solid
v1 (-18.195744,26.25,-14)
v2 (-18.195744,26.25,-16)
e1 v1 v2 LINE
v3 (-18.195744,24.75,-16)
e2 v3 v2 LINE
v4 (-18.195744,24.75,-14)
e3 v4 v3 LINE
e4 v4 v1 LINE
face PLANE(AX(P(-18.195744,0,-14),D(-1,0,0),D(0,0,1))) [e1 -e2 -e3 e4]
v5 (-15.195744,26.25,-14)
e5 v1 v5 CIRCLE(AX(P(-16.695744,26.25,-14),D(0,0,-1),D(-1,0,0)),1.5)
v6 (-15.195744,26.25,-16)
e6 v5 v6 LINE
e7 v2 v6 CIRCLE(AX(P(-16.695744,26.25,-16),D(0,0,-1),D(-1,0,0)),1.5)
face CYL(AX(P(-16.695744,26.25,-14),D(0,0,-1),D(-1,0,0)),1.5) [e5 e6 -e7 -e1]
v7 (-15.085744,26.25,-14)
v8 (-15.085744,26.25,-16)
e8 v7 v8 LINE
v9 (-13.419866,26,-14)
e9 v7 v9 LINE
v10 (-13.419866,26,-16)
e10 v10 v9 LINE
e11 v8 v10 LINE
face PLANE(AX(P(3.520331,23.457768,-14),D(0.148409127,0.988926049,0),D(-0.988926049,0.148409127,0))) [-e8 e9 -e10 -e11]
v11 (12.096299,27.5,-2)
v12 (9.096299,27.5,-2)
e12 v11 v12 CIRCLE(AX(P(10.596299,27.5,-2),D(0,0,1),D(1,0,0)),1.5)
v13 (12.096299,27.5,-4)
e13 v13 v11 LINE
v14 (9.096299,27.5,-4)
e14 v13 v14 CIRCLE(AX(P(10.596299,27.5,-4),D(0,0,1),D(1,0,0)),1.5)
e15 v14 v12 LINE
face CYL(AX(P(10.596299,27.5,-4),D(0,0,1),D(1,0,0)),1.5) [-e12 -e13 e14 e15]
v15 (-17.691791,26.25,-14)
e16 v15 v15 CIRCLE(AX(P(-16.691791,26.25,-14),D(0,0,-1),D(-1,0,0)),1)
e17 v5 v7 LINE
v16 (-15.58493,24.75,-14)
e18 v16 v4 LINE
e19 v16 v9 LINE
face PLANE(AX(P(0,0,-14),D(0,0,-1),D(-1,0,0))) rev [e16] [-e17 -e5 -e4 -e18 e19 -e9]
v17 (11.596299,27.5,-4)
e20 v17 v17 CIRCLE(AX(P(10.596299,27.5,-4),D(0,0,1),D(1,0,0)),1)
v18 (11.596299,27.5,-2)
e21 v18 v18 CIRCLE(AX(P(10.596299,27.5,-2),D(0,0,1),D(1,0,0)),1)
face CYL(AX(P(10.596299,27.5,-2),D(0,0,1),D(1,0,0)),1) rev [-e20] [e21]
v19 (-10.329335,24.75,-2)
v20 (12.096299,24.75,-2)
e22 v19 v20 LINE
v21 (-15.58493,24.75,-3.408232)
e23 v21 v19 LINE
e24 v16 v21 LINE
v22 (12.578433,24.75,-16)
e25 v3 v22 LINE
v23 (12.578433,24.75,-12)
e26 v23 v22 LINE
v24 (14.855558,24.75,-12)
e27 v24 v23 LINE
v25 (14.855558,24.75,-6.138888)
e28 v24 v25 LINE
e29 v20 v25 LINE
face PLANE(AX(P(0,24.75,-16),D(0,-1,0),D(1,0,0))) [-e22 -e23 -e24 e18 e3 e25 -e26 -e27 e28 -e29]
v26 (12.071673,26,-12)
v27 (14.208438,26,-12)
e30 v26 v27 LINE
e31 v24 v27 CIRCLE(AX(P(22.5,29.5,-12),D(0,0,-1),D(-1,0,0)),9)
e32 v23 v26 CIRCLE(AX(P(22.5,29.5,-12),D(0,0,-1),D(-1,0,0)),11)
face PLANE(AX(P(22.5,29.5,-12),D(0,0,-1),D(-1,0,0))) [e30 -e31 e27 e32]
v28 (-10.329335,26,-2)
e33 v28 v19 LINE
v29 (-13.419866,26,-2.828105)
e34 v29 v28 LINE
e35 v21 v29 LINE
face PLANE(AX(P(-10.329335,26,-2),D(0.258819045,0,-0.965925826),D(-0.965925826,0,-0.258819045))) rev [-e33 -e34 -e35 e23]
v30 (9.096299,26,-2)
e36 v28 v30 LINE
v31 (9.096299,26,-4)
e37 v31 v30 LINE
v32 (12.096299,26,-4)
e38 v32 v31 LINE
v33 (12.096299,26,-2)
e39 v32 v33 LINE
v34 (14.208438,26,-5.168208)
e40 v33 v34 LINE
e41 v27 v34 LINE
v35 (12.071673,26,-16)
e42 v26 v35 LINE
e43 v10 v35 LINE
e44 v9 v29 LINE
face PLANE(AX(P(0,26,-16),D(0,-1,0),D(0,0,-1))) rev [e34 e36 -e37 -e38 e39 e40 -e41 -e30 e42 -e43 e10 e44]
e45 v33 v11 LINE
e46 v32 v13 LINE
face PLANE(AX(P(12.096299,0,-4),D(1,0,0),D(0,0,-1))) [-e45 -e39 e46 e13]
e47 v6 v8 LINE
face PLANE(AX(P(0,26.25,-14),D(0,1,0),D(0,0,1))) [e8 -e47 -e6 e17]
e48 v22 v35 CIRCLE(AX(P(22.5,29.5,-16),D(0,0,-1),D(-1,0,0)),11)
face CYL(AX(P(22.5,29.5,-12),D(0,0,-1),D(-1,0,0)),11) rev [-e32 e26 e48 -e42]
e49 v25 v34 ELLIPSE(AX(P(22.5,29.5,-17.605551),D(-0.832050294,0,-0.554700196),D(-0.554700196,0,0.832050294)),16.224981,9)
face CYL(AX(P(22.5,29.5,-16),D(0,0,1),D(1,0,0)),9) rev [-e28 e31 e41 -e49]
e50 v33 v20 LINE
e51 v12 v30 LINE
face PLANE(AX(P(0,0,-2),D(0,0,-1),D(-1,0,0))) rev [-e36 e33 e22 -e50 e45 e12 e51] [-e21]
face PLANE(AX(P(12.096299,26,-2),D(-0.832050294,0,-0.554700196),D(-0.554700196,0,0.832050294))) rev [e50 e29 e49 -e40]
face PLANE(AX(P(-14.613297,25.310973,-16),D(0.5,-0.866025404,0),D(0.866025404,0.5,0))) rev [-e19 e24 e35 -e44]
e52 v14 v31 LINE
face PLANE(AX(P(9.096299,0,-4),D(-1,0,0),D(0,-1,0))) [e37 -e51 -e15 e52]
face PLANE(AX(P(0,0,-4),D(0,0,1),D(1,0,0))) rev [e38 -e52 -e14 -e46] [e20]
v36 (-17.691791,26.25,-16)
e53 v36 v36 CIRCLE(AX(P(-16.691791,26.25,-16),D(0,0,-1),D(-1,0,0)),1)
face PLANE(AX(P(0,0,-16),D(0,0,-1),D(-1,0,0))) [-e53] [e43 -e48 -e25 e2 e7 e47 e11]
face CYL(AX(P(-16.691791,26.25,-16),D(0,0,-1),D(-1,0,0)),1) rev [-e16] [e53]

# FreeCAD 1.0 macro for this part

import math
import FreeCAD as App
import Part
import Sketcher
Q = App.Units.Quantity


def add_polygon(sketch, points):
    """Adds a closed chain of lines whose ends are joined by coincident constraints."""
    first, n = sketch.GeometryCount, len(points)
    for a, b in zip(points, points[1:] + points[:1]):
        sketch.addGeometry(Part.LineSegment(App.Vector(*a, 0), App.Vector(*b, 0)), False)
    for i in range(n):
        sketch.addConstraint(Sketcher.Constraint("Coincident", first + i, 2, first + (i + 1) % n, 1))

doc = App.newDocument("Part")
body = doc.addObject("PartDesign::Body", "Body")

# Sketch on XY plane
sketch1 = body.newObject("Sketcher::SketchObject", "Sketch")
sketch1.AttachmentSupport = (doc.getObject("XY_Plane"), [""])
sketch1.MapMode = "FlatFace"
sketch1.AttachmentOffset = App.Placement(App.Vector(0, 0, -2), App.Rotation())
sketch1.addGeometry(Part.LineSegment(App.Vector(14.9, 24.8, 0), App.Vector(-15.6, 24.8, 0)), False)
sketch1.addGeometry(Part.LineSegment(App.Vector(-15.6, 24.8, 0), App.Vector(-13.4, 26, 0)), False)
sketch1.addGeometry(Part.LineSegment(App.Vector(-13.4, 26, 0), App.Vector(14.2, 26, 0)), False)
sketch1.addGeometry(Part.ArcOfCircle(Part.Circle(App.Vector(22.5, 29.5, 0), App.Vector(0, 0, 1), 9), math.radians(-157.11), math.radians(-148.14)), False)
sketch1.addConstraint(Sketcher.Constraint("Coincident", 0, 2, 1, 1))
sketch1.addConstraint(Sketcher.Constraint("Coincident", 1, 2, 2, 1))
sketch1.addConstraint(Sketcher.Constraint("Coincident", 2, 2, 3, 1))
sketch1.addConstraint(Sketcher.Constraint("Coincident", 3, 2, 0, 1))
sketch1.addConstraint(Sketcher.Constraint("Horizontal", 0))
sketch1.addConstraint(Sketcher.Constraint("Horizontal", 2))
sketch1.addConstraint(Sketcher.Constraint("Radius", 3, Q("9 mm")))
sketch1.addConstraint(Sketcher.Constraint("Angle", 1, Q("30 deg")))
sketch1.addConstraint(Sketcher.Constraint("DistanceY", -1, 1, 1, 2, Q("26 mm")))
sketch1.addConstraint(Sketcher.Constraint("Distance", 1, Q("2.5 mm")))
sketch1.addConstraint(Sketcher.Constraint("DistanceX", -1, 1, 3, 3, Q("22.5 mm")))
sketch1.addConstraint(Sketcher.Constraint("DistanceY", -1, 1, 3, 3, Q("29.5 mm")))
sketch1.addConstraint(Sketcher.Constraint("DistanceX", 0, 2, 0, 1, Q("30.440487 mm")))
pad1 = body.newObject("PartDesign::Pad", "Pad")
pad1.Profile = sketch1
pad1.Length = 14
pad1.Reversed = True

# Sketch on XY plane
sketch2 = body.newObject("Sketcher::SketchObject", "Sketch001")
sketch2.AttachmentSupport = (doc.getObject("XY_Plane"), [""])
sketch2.MapMode = "FlatFace"
sketch2.AttachmentOffset = App.Placement(App.Vector(0, 0, -16), App.Rotation())
sketch2.addGeometry(Part.LineSegment(App.Vector(17.4, 24.8, 0), App.Vector(12.6, 24.8, 0)), False)
sketch2.addGeometry(Part.ArcOfCircle(Part.Circle(App.Vector(22.5, 29.5, 0), App.Vector(0, 0, 1), 11), math.radians(166), math.radians(206)), False)
sketch2.addGeometry(Part.LineSegment(App.Vector(11.8, 32.2, 0), App.Vector(16.1, 32.2, 0)), False)
sketch2.addGeometry(Part.LineSegment(App.Vector(16.1, 32.2, 0), App.Vector(17.4, 24.8, 0)), False)
sketch2.addConstraint(Sketcher.Constraint("Coincident", 0, 2, 1, 2))
sketch2.addConstraint(Sketcher.Constraint("Coincident", 1, 1, 2, 1))
sketch2.addConstraint(Sketcher.Constraint("Coincident", 2, 2, 3, 1))
sketch2.addConstraint(Sketcher.Constraint("Coincident", 3, 2, 0, 1))
sketch2.addConstraint(Sketcher.Constraint("Horizontal", 0))
sketch2.addConstraint(Sketcher.Constraint("Horizontal", 2))
sketch2.addConstraint(Sketcher.Constraint("Radius", 1, Q("11 mm")))
sketch2.addConstraint(Sketcher.Constraint("DistanceX", -1, 1, 1, 3, Q("22.5 mm")))
sketch2.addConstraint(Sketcher.Constraint("DistanceY", -1, 1, 1, 3, Q("29.5 mm")))
sketch2.addConstraint(Sketcher.Constraint("DistanceY", 0, 2, 1, 1, Q("7.5 mm")))
sketch2.addConstraint(Sketcher.Constraint("DistanceY", -1, 1, 0, 2, Q("24.75 mm")))
sketch2.addConstraint(Sketcher.Constraint("Distance", 3, Q("7.611058 mm")))
sketch2.addConstraint(Sketcher.Constraint("DistanceX", 0, 2, 0, 1, Q("4.779826 mm")))
pocket1 = body.newObject("PartDesign::Pocket", "Pocket")
pocket1.Profile = sketch2
pocket1.Length = 4
pocket1.Reversed = True

# Sketch on XZ plane
sketch3 = body.newObject("Sketcher::SketchObject", "Sketch002")
sketch3.AttachmentSupport = (doc.getObject("XZ_Plane"), [""])
sketch3.MapMode = "FlatFace"
sketch3.AttachmentOffset = App.Placement(App.Vector(0, 0, -24.75), App.Rotation())
add_polygon(sketch3, [(12.1, -2), (15.4, -7), (15.4, -2)])  # lines 0-2
add_polygon(sketch3, [(-15.6, -3.4), (-10.3, -2), (-15.6, -2)])  # lines 3-5
sketch3.addConstraint(Sketcher.Constraint("Vertical", 1))
sketch3.addConstraint(Sketcher.Constraint("Horizontal", 2))
sketch3.addConstraint(Sketcher.Constraint("Horizontal", 4))
sketch3.addConstraint(Sketcher.Constraint("Vertical", 5))
sketch3.addConstraint(Sketcher.Constraint("Horizontal", 2, 2, 3, 2))
sketch3.addConstraint(Sketcher.Constraint("DistanceY", 1, 1, 1, 2, Q("5 mm")))
sketch3.addConstraint(Sketcher.Constraint("Angle", 3, Q("15 deg")))
sketch3.addConstraint(Sketcher.Constraint("DistanceY", 0, 2, -1, 1, Q("7 mm")))
sketch3.addConstraint(Sketcher.Constraint("DistanceX", -1, 1, 2, 2, Q("12.096299 mm")))
sketch3.addConstraint(Sketcher.Constraint("DistanceX", 2, 2, 2, 1, Q("3.333333 mm")))
sketch3.addConstraint(Sketcher.Constraint("DistanceX", 4, 2, 4, 1, Q("5.255595 mm")))
sketch3.addConstraint(Sketcher.Constraint("DistanceX", 4, 2, -1, 1, Q("15.58493 mm")))
pocket2 = body.newObject("PartDesign::Pocket", "Pocket001")
pocket2.Profile = sketch3
pocket2.Type = "ThroughAll"

# Sketch on XY plane
sketch4 = body.newObject("Sketcher::SketchObject", "Sketch003")
sketch4.AttachmentSupport = (doc.getObject("XY_Plane"), [""])
sketch4.MapMode = "FlatFace"
sketch4.AttachmentOffset = App.Placement(App.Vector(0, 0, -16), App.Rotation())
sketch4.addGeometry(Part.LineSegment(App.Vector(-15.2, 26.25, 0), App.Vector(-15.09, 26.25, 0)), False)
sketch4.addGeometry(Part.LineSegment(App.Vector(-15.09, 26.25, 0), App.Vector(-13.42, 26, 0)), False)
sketch4.addGeometry(Part.LineSegment(App.Vector(-13.42, 26, 0), App.Vector(-15.58, 24.75, 0)), False)
sketch4.addGeometry(Part.LineSegment(App.Vector(-15.58, 24.75, 0), App.Vector(-18.2, 24.75, 0)), False)
sketch4.addGeometry(Part.LineSegment(App.Vector(-18.2, 24.75, 0), App.Vector(-18.2, 26.25, 0)), False)
sketch4.addGeometry(Part.ArcOfCircle(Part.Circle(App.Vector(-16.7, 26.25, 0), App.Vector(0, 0, 1), 1.5), math.radians(0), math.radians(180)), False)
sketch4.addConstraint(Sketcher.Constraint("Coincident", 0, 2, 1, 1))
sketch4.addConstraint(Sketcher.Constraint("Coincident", 1, 2, 2, 1))
sketch4.addConstraint(Sketcher.Constraint("Coincident", 2, 2, 3, 1))
sketch4.addConstraint(Sketcher.Constraint("Coincident", 3, 2, 4, 1))
sketch4.addConstraint(Sketcher.Constraint("Tangent", 4, 2, 5, 2))
sketch4.addConstraint(Sketcher.Constraint("Coincident", 5, 1, 0, 1))
sketch4.addConstraint(Sketcher.Constraint("Horizontal", 0))
sketch4.addConstraint(Sketcher.Constraint("Horizontal", 3))
sketch4.addConstraint(Sketcher.Constraint("Vertical", 4))
sketch4.addConstraint(Sketcher.Constraint("Horizontal", 5, 3, 0, 2))
sketch4.addConstraint(Sketcher.Constraint("Radius", 5, Q("1.5 mm")))
sketch4.addConstraint(Sketcher.Constraint("Angle", 2, Q("-150 deg")))
sketch4.addConstraint(Sketcher.Constraint("DistanceY", 4, 1, 4, 2, Q("1.5 mm")))
sketch4.addConstraint(Sketcher.Constraint("DistanceY", -1, 1, 1, 2, Q("26 mm")))
sketch4.addConstraint(Sketcher.Constraint("Distance", 2, Q("2.5 mm")))
sketch4.addConstraint(Sketcher.Constraint("DistanceX", 0, 1, 0, 2, Q("0.11 mm")))
sketch4.addConstraint(Sketcher.Constraint("DistanceX", 3, 2, 3, 1, Q("2.610815 mm")))
sketch4.addConstraint(Sketcher.Constraint("DistanceX", 2, 2, -1, 1, Q("15.58493 mm")))
pad2 = body.newObject("PartDesign::Pad", "Pad001")
pad2.Profile = sketch4
pad2.Length = 2

# Sketch on XY plane
sketch5 = body.newObject("Sketcher::SketchObject", "Sketch004")
sketch5.AttachmentSupport = (doc.getObject("XY_Plane"), [""])
sketch5.MapMode = "FlatFace"
sketch5.AttachmentOffset = App.Placement(App.Vector(0, 0, -2), App.Rotation())
sketch5.addGeometry(Part.LineSegment(App.Vector(9.1, 26, 0), App.Vector(12.1, 26, 0)), False)
sketch5.addGeometry(Part.LineSegment(App.Vector(12.1, 26, 0), App.Vector(12.1, 27.5, 0)), False)
sketch5.addGeometry(Part.ArcOfCircle(Part.Circle(App.Vector(10.6, 27.5, 0), App.Vector(0, 0, 1), 1.5), math.radians(0), math.radians(180)), False)
sketch5.addGeometry(Part.LineSegment(App.Vector(9.1, 27.5, 0), App.Vector(9.1, 26, 0)), False)
sketch5.addConstraint(Sketcher.Constraint("Coincident", 0, 2, 1, 1))
sketch5.addConstraint(Sketcher.Constraint("Tangent", 1, 2, 2, 1))
sketch5.addConstraint(Sketcher.Constraint("Tangent", 2, 2, 3, 1))
sketch5.addConstraint(Sketcher.Constraint("Coincident", 3, 2, 0, 1))
sketch5.addConstraint(Sketcher.Constraint("Horizontal", 0))
sketch5.addConstraint(Sketcher.Constraint("Vertical", 1))
sketch5.addConstraint(Sketcher.Constraint("Vertical", 3))
sketch5.addConstraint(Sketcher.Constraint("Radius", 2, Q("1.5 mm")))
sketch5.addConstraint(Sketcher.Constraint("DistanceY", 1, 1, 1, 2, Q("1.5 mm")))
sketch5.addConstraint(Sketcher.Constraint("DistanceY", -1, 1, 0, 2, Q("26 mm")))
sketch5.addConstraint(Sketcher.Constraint("DistanceX", -1, 1, 2, 3, Q("10.596299 mm")))
pad3 = body.newObject("PartDesign::Pad", "Pad002")
pad3.Profile = sketch5
pad3.Length = 2
pad3.Reversed = True

# Sketch on XY plane
sketch6 = body.newObject("Sketcher::SketchObject", "Sketch005")
sketch6.AttachmentSupport = (doc.getObject("XY_Plane"), [""])
sketch6.MapMode = "FlatFace"
sketch6.AttachmentOffset = App.Placement(App.Vector(0, 0, -16), App.Rotation())
sketch6.addGeometry(Part.Circle(App.Vector(-16.7, 26.2, 0), App.Vector(0, 0, 1), 1), False)
sketch6.addConstraint(Sketcher.Constraint("Diameter", 0, Q("2 mm")))
sketch6.addConstraint(Sketcher.Constraint("DistanceY", -1, 1, 0, 3, Q("26.25 mm")))
sketch6.addConstraint(Sketcher.Constraint("DistanceX", 0, 3, -1, 1, Q("16.691791 mm")))
doc.recompute()
hole = body.newObject("PartDesign::Hole", "Hole")
hole.Profile = sketch6
hole.ThreadType = "None"
hole.Diameter = 2
hole.DepthType = "ThroughAll"
hole.Reversed = True

# Sketch on XY plane
sketch7 = body.newObject("Sketcher::SketchObject", "Sketch006")
sketch7.AttachmentSupport = (doc.getObject("XY_Plane"), [""])
sketch7.MapMode = "FlatFace"
sketch7.AttachmentOffset = App.Placement(App.Vector(0, 0, -2), App.Rotation())
sketch7.addGeometry(Part.Circle(App.Vector(10.6, 27.5, 0), App.Vector(0, 0, 1), 1), False)
sketch7.addConstraint(Sketcher.Constraint("Diameter", 0, Q("2 mm")))
sketch7.addConstraint(Sketcher.Constraint("DistanceY", -1, 1, 0, 3, Q("27.5 mm")))
sketch7.addConstraint(Sketcher.Constraint("DistanceX", -1, 1, 0, 3, Q("10.596299 mm")))
doc.recompute()
hole2 = body.newObject("PartDesign::Hole", "Hole001")
hole2.Profile = sketch7
hole2.ThreadType = "None"
hole2.Diameter = 2
hole2.DepthType = "ThroughAll"

doc.recompute()
